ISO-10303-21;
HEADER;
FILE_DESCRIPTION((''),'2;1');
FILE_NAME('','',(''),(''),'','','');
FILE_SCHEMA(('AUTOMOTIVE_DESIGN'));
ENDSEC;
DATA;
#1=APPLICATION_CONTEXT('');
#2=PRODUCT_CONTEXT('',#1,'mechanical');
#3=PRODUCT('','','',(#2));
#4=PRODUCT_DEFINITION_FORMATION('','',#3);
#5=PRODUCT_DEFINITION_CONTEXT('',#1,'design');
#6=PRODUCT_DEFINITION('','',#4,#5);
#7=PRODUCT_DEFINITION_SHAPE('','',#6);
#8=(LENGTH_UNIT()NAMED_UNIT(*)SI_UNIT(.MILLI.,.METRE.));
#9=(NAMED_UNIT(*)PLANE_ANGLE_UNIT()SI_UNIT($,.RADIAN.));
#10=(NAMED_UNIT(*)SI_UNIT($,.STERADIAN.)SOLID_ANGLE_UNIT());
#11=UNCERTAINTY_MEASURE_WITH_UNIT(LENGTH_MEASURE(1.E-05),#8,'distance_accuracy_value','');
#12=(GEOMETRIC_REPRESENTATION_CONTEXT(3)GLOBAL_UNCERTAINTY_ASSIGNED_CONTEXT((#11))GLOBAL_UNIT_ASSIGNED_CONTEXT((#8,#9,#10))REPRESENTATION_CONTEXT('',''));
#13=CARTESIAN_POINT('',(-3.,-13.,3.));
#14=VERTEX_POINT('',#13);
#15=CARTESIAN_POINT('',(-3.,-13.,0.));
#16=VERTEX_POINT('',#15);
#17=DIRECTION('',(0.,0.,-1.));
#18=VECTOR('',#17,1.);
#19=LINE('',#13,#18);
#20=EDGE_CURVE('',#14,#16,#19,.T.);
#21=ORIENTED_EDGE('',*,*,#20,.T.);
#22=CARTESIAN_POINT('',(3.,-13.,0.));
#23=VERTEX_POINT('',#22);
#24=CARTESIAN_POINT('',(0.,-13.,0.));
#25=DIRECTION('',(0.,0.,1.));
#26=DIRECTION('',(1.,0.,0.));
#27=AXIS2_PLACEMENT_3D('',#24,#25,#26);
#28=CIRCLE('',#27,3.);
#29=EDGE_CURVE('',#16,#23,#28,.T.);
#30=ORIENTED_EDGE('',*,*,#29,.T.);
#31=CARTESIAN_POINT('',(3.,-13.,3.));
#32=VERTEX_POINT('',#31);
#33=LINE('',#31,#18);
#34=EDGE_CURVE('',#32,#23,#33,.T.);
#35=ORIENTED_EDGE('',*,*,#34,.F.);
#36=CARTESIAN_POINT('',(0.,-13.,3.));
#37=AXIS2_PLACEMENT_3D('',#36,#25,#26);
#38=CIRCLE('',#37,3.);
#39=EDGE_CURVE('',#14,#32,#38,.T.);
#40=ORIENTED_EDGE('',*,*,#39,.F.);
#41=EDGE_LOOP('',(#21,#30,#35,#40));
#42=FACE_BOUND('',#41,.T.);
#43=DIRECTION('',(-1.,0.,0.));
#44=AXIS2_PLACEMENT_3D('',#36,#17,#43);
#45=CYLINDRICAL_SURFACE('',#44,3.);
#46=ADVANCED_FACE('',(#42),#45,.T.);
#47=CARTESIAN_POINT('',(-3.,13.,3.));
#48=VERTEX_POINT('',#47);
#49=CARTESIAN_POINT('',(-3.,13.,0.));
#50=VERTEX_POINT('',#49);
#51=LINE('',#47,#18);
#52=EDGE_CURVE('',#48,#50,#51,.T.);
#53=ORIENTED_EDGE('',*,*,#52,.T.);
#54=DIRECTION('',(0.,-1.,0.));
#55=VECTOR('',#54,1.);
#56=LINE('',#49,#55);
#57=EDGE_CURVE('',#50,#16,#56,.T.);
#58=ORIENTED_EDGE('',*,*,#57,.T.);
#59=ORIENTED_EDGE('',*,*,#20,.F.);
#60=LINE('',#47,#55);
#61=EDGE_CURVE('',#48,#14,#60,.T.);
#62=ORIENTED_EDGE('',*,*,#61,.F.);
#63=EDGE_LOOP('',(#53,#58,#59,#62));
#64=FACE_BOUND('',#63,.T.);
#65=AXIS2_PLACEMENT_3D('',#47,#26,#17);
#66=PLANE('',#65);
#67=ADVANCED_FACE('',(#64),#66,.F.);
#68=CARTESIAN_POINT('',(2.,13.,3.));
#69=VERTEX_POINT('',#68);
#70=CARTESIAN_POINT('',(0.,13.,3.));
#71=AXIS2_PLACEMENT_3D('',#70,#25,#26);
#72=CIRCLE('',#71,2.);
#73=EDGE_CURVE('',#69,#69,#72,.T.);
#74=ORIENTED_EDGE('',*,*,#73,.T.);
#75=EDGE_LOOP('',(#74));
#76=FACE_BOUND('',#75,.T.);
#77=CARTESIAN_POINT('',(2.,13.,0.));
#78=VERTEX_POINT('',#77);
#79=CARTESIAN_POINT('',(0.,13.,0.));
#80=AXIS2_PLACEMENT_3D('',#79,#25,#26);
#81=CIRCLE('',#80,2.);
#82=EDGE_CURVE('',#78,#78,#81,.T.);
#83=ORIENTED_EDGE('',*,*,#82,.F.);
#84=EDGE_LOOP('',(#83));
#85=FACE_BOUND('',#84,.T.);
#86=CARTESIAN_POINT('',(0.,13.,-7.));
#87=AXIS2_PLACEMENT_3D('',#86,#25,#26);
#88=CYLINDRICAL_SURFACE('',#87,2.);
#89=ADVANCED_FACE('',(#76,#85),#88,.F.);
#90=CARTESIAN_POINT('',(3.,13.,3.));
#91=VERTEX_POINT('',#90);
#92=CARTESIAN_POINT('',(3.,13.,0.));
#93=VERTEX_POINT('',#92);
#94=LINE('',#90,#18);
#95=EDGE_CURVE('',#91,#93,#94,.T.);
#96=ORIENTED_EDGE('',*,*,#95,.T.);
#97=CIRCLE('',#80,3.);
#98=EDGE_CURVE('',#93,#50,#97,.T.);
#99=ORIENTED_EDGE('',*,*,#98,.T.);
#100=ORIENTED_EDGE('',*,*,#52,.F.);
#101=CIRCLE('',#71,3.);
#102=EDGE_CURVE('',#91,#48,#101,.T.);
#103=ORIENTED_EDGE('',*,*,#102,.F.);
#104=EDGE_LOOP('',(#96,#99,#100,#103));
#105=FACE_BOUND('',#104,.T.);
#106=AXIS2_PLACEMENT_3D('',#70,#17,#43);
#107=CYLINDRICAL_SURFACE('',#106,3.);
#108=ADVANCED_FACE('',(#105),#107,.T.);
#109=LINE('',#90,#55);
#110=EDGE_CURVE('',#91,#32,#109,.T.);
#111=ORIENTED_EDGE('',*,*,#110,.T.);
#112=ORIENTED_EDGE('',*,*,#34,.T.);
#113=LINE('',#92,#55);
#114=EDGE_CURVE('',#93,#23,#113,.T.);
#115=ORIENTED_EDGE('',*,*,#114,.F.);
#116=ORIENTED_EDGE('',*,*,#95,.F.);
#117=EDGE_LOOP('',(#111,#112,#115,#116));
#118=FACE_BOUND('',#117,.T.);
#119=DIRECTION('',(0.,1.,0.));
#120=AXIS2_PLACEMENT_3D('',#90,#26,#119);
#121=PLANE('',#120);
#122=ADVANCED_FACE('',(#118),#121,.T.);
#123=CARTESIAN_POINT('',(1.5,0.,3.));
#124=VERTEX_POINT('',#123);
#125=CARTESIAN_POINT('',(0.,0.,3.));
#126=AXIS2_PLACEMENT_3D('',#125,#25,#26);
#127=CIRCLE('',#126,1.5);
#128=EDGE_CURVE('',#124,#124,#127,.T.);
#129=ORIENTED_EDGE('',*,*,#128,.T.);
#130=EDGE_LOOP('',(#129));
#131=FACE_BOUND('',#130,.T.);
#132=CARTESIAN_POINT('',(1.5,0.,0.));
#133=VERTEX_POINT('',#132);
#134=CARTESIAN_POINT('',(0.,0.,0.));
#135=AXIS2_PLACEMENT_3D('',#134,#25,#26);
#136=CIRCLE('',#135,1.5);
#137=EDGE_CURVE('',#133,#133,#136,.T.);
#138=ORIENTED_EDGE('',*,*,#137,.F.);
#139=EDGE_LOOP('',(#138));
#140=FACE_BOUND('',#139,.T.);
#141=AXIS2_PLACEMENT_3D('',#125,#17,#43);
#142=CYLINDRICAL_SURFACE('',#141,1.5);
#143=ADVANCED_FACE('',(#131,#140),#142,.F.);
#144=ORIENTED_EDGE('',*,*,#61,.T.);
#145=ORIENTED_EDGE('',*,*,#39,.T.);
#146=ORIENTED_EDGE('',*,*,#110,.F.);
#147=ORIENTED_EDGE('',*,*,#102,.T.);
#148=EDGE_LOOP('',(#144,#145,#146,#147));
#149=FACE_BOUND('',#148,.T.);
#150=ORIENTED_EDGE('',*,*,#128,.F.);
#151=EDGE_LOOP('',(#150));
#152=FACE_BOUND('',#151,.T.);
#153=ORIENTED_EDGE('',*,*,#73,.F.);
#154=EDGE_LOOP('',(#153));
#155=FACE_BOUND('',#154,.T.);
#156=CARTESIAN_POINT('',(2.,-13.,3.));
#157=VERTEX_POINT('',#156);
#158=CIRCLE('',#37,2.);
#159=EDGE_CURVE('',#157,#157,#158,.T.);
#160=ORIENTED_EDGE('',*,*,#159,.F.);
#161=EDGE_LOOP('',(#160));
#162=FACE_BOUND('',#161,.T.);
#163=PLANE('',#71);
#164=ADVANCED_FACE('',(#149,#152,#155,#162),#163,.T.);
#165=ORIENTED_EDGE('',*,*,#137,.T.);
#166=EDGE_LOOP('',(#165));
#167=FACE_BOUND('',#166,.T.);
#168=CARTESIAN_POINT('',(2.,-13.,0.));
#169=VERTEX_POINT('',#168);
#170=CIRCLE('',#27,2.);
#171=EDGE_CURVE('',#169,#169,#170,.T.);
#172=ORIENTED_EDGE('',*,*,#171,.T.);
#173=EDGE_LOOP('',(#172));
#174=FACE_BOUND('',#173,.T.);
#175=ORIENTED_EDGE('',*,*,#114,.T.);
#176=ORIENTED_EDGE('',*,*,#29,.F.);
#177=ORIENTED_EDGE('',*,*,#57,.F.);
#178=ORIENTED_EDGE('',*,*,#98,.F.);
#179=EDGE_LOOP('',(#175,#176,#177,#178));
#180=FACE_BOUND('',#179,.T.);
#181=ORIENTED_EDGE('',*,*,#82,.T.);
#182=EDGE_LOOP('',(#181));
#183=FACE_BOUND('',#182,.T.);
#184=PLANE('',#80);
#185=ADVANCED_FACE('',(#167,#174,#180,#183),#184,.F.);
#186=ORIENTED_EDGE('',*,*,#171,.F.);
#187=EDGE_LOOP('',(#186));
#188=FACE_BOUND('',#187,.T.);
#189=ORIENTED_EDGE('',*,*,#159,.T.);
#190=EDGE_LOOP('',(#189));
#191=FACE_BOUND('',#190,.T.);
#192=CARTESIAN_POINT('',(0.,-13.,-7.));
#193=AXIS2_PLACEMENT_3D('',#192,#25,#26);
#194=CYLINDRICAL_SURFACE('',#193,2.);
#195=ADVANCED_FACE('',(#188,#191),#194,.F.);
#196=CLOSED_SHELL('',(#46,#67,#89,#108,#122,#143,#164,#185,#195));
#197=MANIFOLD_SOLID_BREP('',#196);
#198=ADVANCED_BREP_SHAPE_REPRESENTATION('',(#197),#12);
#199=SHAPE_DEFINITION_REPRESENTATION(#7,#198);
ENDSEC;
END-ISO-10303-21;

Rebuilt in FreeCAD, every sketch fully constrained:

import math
import FreeCAD as App
import Part
import Sketcher
from FreeCAD import Vector
Q = App.Units.Quantity

doc = App.newDocument("Part")
body = doc.addObject("PartDesign::Body", "Body")

# Sketch on XY plane
sketch1 = body.newObject("Sketcher::SketchObject", "Sketch")
sketch1.AttachmentSupport = (doc.getObject("XY_Plane"), [""])
sketch1.MapMode = "FlatFace"
sketch1.addGeometry(Part.LineSegment(Vector(3, -13, 0), Vector(3, 13, 0)), False)
sketch1.addGeometry(Part.ArcOfCircle(Part.Circle(Vector(0, 13, 0), Vector(0, 0, 1), 3), math.radians(0), math.radians(180)), False)
sketch1.addGeometry(Part.LineSegment(Vector(-3, 13, 0), Vector(-3, -13, 0)), False)
sketch1.addGeometry(Part.ArcOfCircle(Part.Circle(Vector(0, -13, 0), Vector(0, 0, 1), 3), math.radians(180), math.radians(360)), False)
sketch1.addGeometry(Part.Circle(Vector(0, -13, 0), Vector(0, 0, 1), 1.5), False)
sketch1.addGeometry(Part.Circle(Vector(0, 0, 0), Vector(0, 0, 1), 1.5), False)
sketch1.addGeometry(Part.Circle(Vector(0, 13, 0), Vector(0, 0, 1), 1.5), False)
sketch1.addConstraint(Sketcher.Constraint("Tangent", 0, 2, 1, 1))
sketch1.addConstraint(Sketcher.Constraint("Tangent", 1, 2, 2, 1))
sketch1.addConstraint(Sketcher.Constraint("Tangent", 2, 2, 3, 1))
sketch1.addConstraint(Sketcher.Constraint("Tangent", 3, 2, 0, 1))
sketch1.addConstraint(Sketcher.Constraint("Vertical", 0))
sketch1.addConstraint(Sketcher.Constraint("Vertical", 2))
sketch1.addConstraint(Sketcher.Constraint("Coincident", 5, 3, -1, 1))
sketch1.addConstraint(Sketcher.Constraint("Coincident", 4, 3, 3, 3))
sketch1.addConstraint(Sketcher.Constraint("Coincident", 6, 3, 1, 3))
sketch1.addConstraint(Sketcher.Constraint("Equal", 4, 5))
sketch1.addConstraint(Sketcher.Constraint("Equal", 5, 6))
sketch1.addConstraint(Sketcher.Constraint("Symmetric", 1, 3, 3, 3, -1, 1))
sketch1.addConstraint(Sketcher.Constraint("Diameter", 4, Q("3 mm")))
sketch1.addConstraint(Sketcher.Constraint("Radius", 1, Q("3 mm")))
sketch1.addConstraint(Sketcher.Constraint("DistanceY", 0, 1, 0, 2, Q("26 mm")))
pad1 = body.newObject("PartDesign::Pad", "Pad")
pad1.Profile = sketch1
pad1.Length = 3

# Sketch on XY plane
sketch2 = body.newObject("Sketcher::SketchObject", "Sketch001")
sketch2.AttachmentSupport = (doc.getObject("XY_Plane"), [""])
sketch2.MapMode = "FlatFace"
sketch2.AttachmentOffset = App.Placement(Vector(0, 0, 3), App.Rotation())
sketch2.addGeometry(Part.Circle(Vector(0, -13, 0), Vector(0, 0, 1), 2), False)
sketch2.addGeometry(Part.Circle(Vector(0, 13, 0), Vector(0, 0, 1), 2), False)
sketch2.addConstraint(Sketcher.Constraint("Equal", 0, 1))
sketch2.addConstraint(Sketcher.Constraint("Symmetric", 0, 3, 1, 3, -1, 1))
sketch2.addConstraint(Sketcher.Constraint("PointOnObject", 0, 3, -2))
sketch2.addConstraint(Sketcher.Constraint("Diameter", 0, Q("4 mm")))
sketch2.addConstraint(Sketcher.Constraint("DistanceY", 0, 3, -1, 1, Q("13 mm")))
pocket1 = body.newObject("PartDesign::Pocket", "Pocket")
pocket1.Profile = sketch2
pocket1.Length = 10

doc.recompute()
